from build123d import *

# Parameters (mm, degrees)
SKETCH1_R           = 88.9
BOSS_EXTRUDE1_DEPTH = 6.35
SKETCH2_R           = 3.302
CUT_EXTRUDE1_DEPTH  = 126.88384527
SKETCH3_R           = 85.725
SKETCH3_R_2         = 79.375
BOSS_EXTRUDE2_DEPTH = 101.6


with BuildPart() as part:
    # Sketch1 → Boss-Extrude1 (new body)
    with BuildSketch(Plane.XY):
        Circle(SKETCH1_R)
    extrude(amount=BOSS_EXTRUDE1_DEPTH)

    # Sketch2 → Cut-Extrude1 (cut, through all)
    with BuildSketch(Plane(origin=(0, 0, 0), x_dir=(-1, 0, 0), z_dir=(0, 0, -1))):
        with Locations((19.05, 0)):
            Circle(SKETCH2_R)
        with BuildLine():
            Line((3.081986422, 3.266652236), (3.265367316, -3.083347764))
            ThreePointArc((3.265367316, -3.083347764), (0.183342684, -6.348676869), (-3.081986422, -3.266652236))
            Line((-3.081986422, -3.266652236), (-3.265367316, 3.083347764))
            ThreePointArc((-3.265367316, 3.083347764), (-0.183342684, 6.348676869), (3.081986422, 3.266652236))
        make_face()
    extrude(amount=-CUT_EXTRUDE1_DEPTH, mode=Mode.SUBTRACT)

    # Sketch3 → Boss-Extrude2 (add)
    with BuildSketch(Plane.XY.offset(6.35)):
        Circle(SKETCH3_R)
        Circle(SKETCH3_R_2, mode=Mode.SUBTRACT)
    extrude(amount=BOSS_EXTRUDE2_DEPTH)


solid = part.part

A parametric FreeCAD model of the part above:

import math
import FreeCAD as App
import Part
import Sketcher
Q = App.Units.Quantity

doc = App.newDocument("Part")
body = doc.addObject("PartDesign::Body", "Body")

sketch1 = body.newObject("Sketcher::SketchObject", "Sketch")
sketch1.AttachmentSupport = (doc.getObject("XY_Plane"), [""])
sketch1.MapMode = "FlatFace"
sketch1.addGeometry(Part.Circle(App.Vector(0, 0, 0), App.Vector(0, 0, 1), 89), False)
sketch1.addConstraint([
    Sketcher.Constraint("Coincident", 0, 3, -1, 1),
    Sketcher.Constraint("Diameter", 0, Q("7 in")),
])
pad1 = body.newObject("PartDesign::Pad", "Pad")
pad1.Profile = sketch1
pad1.Length = Q("0.25 in")

sketch2 = body.newObject("Sketcher::SketchObject", "Sketch001")
sketch2.AttachmentSupport = (doc.getObject("XY_Plane"), [""])
sketch2.MapMode = "FlatFace"
sketch2.addGeometry([
    Part.Circle(App.Vector(-19.1, 0, 0), App.Vector(0, 0, 1), 3.3),
    Part.LineSegment(App.Vector(-3.3, -3.1, 0), App.Vector(-3.1, 3.3, 0)),
    Part.ArcOfCircle(Part.Circle(App.Vector(0.1, 3.2, 0), App.Vector(0, 0, 1), 3.2), math.radians(-2), math.radians(178)),
    Part.LineSegment(App.Vector(3.3, 3.1, 0), App.Vector(3.1, -3.3, 0)),
    Part.ArcOfCircle(Part.Circle(App.Vector(-0.1, -3.2, 0), App.Vector(0, 0, 1), 3.2), math.radians(178), math.radians(358)),
], False)
sketch2.addConstraint([
    Sketcher.Constraint("Tangent", 1, 2, 2, 2),
    Sketcher.Constraint("Tangent", 2, 1, 3, 1),
    Sketcher.Constraint("Tangent", 3, 2, 4, 2),
    Sketcher.Constraint("Tangent", 4, 1, 1, 1),
    Sketcher.Constraint("Equal", 2, 4),
    Sketcher.Constraint("Symmetric", 2, 3, 4, 3, -1, 1),
    Sketcher.Constraint("PointOnObject", 0, 3, -1),
    Sketcher.Constraint("Diameter", 0, Q("0.26 in")),
    Sketcher.Constraint("Radius", 2, Q("0.125 in")),
    Sketcher.Constraint("DistanceX", 0, 3, -1, 1, Q("0.75 in")),
    Sketcher.Constraint("DistanceY", 4, 3, 2, 3, Q("0.25 in")),
    Sketcher.Constraint("DistanceX", -1, 1, 2, 3, Q("0.09169 mm")),
])
pocket1 = body.newObject("PartDesign::Pocket", "Pocket")
pocket1.Profile = sketch2
pocket1.Type = "ThroughAll"
pocket1.Reversed = True

sketch3 = body.newObject("Sketcher::SketchObject", "Sketch002")
sketch3.AttachmentSupport = (doc.getObject("XY_Plane"), [""])
sketch3.MapMode = "FlatFace"
sketch3.AttachmentOffset = App.Placement(App.Vector(0, 0, 0.25 * 25.4), App.Rotation())
sketch3.addGeometry([
    Part.Circle(App.Vector(0, 0, 0), App.Vector(0, 0, 1), 86),
    Part.Circle(App.Vector(0, 0, 0), App.Vector(0, 0, 1), 79),
], False)
sketch3.addConstraint([
    Sketcher.Constraint("Coincident", 0, 3, -1, 1),
    Sketcher.Constraint("Coincident", 1, 3, -1, 1),
    Sketcher.Constraint("Diameter", 0, Q("6.75 in")),
    Sketcher.Constraint("Diameter", 1, Q("6.25 in")),
])
pad2 = body.newObject("PartDesign::Pad", "Pad001")
pad2.Profile = sketch3
pad2.Length = Q("4 in")

doc.recompute()
